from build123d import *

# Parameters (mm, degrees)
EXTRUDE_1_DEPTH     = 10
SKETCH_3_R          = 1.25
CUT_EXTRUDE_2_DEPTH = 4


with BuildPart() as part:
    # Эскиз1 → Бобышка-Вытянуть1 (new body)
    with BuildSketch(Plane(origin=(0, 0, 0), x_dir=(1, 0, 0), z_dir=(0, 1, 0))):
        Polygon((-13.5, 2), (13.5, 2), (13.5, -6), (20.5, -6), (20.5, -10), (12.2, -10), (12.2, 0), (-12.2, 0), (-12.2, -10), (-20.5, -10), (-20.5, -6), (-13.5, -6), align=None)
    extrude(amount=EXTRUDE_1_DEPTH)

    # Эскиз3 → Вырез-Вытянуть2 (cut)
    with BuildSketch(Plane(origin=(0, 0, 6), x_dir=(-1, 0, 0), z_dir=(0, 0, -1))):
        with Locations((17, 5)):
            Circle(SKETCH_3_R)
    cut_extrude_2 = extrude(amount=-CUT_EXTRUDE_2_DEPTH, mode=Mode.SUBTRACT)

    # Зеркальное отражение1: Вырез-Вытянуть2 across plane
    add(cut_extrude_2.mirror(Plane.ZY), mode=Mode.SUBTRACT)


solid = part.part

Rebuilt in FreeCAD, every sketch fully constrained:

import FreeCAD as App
import Part
import Sketcher

doc = App.newDocument("Part")
params = doc.addObject("Spreadsheet::Sheet", "Params")
for row, (alias, value) in enumerate([
    ("sketch1_width", "27 mm"),
    ("sketch1_width2", "7 mm"),
    ("sketch1_height", "8 mm"),
    ("sketch1_height2", "4 mm"),
    ("sketch1_height3", "10 mm"),
    ("pad1_length", "10 mm"),
    ("sketch2_diameter", "2.5 mm"),
    ("pocket1_length", "4 mm"),
], start=1):
    params.set(f"A{row}", alias)
    params.set(f"B{row}", "=" + value)
    params.setAlias(f"B{row}", alias)

body = doc.addObject("PartDesign::Body", "Body")

sketch1 = doc.addObject("Sketcher::SketchObject", "Sketch")
body.addObject(sketch1)
sketch1.AttachmentSupport = (doc.XZ_Plane, [""])
sketch1.MapMode = "FlatFace"
sketch1.addGeometry([
    Part.LineSegment(App.Vector(13.5, -2, 0), App.Vector(-13.5, -2, 0)),
    Part.LineSegment(App.Vector(-13.5, -2, 0), App.Vector(-13.5, 6, 0)),
    Part.LineSegment(App.Vector(-13.5, 6, 0), App.Vector(-20.5, 6, 0)),
    Part.LineSegment(App.Vector(-20.5, 6, 0), App.Vector(-20.5, 10, 0)),
    Part.LineSegment(App.Vector(-20.5, 10, 0), App.Vector(-12.2, 10, 0)),
    Part.LineSegment(App.Vector(-12.2, 10, 0), App.Vector(-12.2, 0, 0)),
    Part.LineSegment(App.Vector(-12.2, 0, 0), App.Vector(12.2, 0, 0)),
    Part.LineSegment(App.Vector(12.2, 0, 0), App.Vector(12.2, 10, 0)),
    Part.LineSegment(App.Vector(12.2, 10, 0), App.Vector(20.5, 10, 0)),
    Part.LineSegment(App.Vector(20.5, 10, 0), App.Vector(20.5, 6, 0)),
    Part.LineSegment(App.Vector(20.5, 6, 0), App.Vector(13.5, 6, 0)),
    Part.LineSegment(App.Vector(13.5, 6, 0), App.Vector(13.5, -2, 0)),
], False)
sketch1.addConstraint([
    Sketcher.Constraint("Coincident", 0, 2, 1, 1),
    Sketcher.Constraint("Coincident", 1, 2, 2, 1),
    Sketcher.Constraint("Coincident", 2, 2, 3, 1),
    Sketcher.Constraint("Coincident", 3, 2, 4, 1),
    Sketcher.Constraint("Coincident", 4, 2, 5, 1),
    Sketcher.Constraint("Coincident", 5, 2, 6, 1),
    Sketcher.Constraint("Coincident", 6, 2, 7, 1),
    Sketcher.Constraint("Coincident", 7, 2, 8, 1),
    Sketcher.Constraint("Coincident", 8, 2, 9, 1),
    Sketcher.Constraint("Coincident", 9, 2, 10, 1),
    Sketcher.Constraint("Coincident", 10, 2, 11, 1),
    Sketcher.Constraint("Coincident", 11, 2, 0, 1),
    Sketcher.Constraint("Horizontal", 0),
    Sketcher.Constraint("Vertical", 1),
    Sketcher.Constraint("Horizontal", 2),
    Sketcher.Constraint("Vertical", 3),
    Sketcher.Constraint("Horizontal", 4),
    Sketcher.Constraint("Vertical", 5),
    Sketcher.Constraint("Horizontal", 6),
    Sketcher.Constraint("Vertical", 7),
    Sketcher.Constraint("Horizontal", 8),
    Sketcher.Constraint("Vertical", 9),
    Sketcher.Constraint("Horizontal", 10),
    Sketcher.Constraint("Vertical", 11),
    Sketcher.Constraint("Symmetric", 5, 2, 6, 2, -1, 1),
    Sketcher.Constraint("Symmetric", 3, 2, 8, 2, -2),
    Sketcher.Constraint("Symmetric", 1, 2, 10, 2, -2),
    Sketcher.Constraint("DistanceX", 0, 2, 0, 1, 27.0),
    Sketcher.Constraint("DistanceX", 2, 2, 2, 1, 7.0),
    Sketcher.Constraint("DistanceY", 1, 1, 1, 2, 8.0),
    Sketcher.Constraint("DistanceY", 3, 1, 3, 2, 4.0),
    Sketcher.Constraint("DistanceY", 5, 2, 5, 1, 10.0),
    Sketcher.Constraint("DistanceX", 4, 1, 4, 2, 8.3),
])
sketch1.setExpression("Constraints[27]", "Params.sketch1_width")
sketch1.setExpression("Constraints[28]", "Params.sketch1_width2")
sketch1.setExpression("Constraints[29]", "Params.sketch1_height")
sketch1.setExpression("Constraints[30]", "Params.sketch1_height2")
sketch1.setExpression("Constraints[31]", "Params.sketch1_height3")
pad1 = doc.addObject("PartDesign::Pad", "Pad")
body.addObject(pad1)
pad1.Profile = sketch1
pad1.setExpression("Length", "Params.pad1_length")
pad1.Reversed = True

sketch2 = doc.addObject("Sketcher::SketchObject", "Sketch001")
body.addObject(sketch2)
sketch2.AttachmentSupport = (doc.XY_Plane, [""])
sketch2.MapMode = "FlatFace"
sketch2.AttachmentOffset = App.Placement(App.Vector(0, 0, 6), App.Rotation())
sketch2.addGeometry(Part.Circle(App.Vector(-17, 5, 0), App.Vector(0, 0, 1), 1.25), False)
sketch2.addConstraint([
    Sketcher.Constraint("Diameter", 0, 2.5),
    Sketcher.Constraint("DistanceX", 0, 3, -1, 1, 17.0),
    Sketcher.Constraint("DistanceY", -1, 1, 0, 3, 5.0),
])
sketch2.setExpression("Constraints[0]", "Params.sketch2_diameter")
pocket1 = doc.addObject("PartDesign::Pocket", "Pocket")
body.addObject(pocket1)
pocket1.Profile = sketch2
pocket1.setExpression("Length", "Params.pocket1_length")
pocket1.Reversed = True
doc.recompute()

mirrored = doc.addObject("PartDesign::Mirrored", "Mirrored")
body.addObject(mirrored)
mirrored.Originals = [pocket1]
mirrored.MirrorPlane = (doc.YZ_Plane, [""])
body.Tip = mirrored

doc.recompute()
